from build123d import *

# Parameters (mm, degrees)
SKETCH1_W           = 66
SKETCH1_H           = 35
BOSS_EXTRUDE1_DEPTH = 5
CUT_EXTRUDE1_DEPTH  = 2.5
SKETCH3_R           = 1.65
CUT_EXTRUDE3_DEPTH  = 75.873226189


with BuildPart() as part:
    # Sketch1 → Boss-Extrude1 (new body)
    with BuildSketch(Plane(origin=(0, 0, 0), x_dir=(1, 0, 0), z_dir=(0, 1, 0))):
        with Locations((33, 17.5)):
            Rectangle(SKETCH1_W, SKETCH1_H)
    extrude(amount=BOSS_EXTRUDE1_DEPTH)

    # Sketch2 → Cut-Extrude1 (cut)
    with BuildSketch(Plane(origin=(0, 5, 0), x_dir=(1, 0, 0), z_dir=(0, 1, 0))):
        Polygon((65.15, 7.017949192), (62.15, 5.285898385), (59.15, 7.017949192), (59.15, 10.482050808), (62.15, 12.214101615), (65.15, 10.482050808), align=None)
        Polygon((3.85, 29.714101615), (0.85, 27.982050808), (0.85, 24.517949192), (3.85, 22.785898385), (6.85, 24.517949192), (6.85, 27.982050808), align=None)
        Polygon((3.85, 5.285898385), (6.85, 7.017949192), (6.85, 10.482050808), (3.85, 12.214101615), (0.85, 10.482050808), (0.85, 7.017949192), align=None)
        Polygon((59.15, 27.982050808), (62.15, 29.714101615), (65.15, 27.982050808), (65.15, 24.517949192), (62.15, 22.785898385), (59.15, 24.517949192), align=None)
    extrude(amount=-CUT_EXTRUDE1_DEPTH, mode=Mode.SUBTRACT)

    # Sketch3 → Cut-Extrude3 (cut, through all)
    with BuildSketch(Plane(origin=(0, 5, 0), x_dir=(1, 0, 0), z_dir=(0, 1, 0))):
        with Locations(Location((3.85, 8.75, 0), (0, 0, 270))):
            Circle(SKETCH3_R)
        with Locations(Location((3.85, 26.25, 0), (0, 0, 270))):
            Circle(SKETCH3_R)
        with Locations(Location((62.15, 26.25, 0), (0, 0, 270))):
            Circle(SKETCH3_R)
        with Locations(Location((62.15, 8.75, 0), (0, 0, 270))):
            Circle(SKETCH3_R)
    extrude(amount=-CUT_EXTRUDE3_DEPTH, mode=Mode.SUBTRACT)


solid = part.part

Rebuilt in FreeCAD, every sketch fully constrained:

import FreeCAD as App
import Part
import Sketcher
Q = App.Units.Quantity


def add_polygon(sketch, points):
    """Adds a closed chain of lines whose ends are joined by coincident constraints."""
    first, n = sketch.GeometryCount, len(points)
    for a, b in zip(points, points[1:] + points[:1]):
        sketch.addGeometry(Part.LineSegment(App.Vector(*a, 0), App.Vector(*b, 0)), False)
    for i in range(n):
        sketch.addConstraint(Sketcher.Constraint("Coincident", first + i, 2, first + (i + 1) % n, 1))

doc = App.newDocument("Part")
body = doc.addObject("PartDesign::Body", "Body")

sketch1 = doc.addObject("Sketcher::SketchObject", "Sketch")
body.addObject(sketch1)
sketch1.AttachmentSupport = (doc.XZ_Plane, [""])
sketch1.MapMode = "FlatFace"
add_polygon(sketch1, [(0, -35), (0, 0), (66, 0), (66, -35)])
sketch1.addConstraint(Sketcher.Constraint("Vertical", 0))
sketch1.addConstraint(Sketcher.Constraint("Horizontal", 1))
sketch1.addConstraint(Sketcher.Constraint("Vertical", 2))
sketch1.addConstraint(Sketcher.Constraint("Horizontal", 3))
sketch1.addConstraint(Sketcher.Constraint("Coincident", 0, 2, -1, 1))
sketch1.addConstraint(Sketcher.Constraint("DistanceX", 1, 1, 1, 2, Q("66 mm")))
sketch1.addConstraint(Sketcher.Constraint("DistanceY", 0, 1, 0, 2, Q("35 mm")))
pad1 = doc.addObject("PartDesign::Pad", "Pad")
body.addObject(pad1)
pad1.Profile = sketch1
pad1.Length = 5
pad1.Reversed = True

sketch2 = doc.addObject("Sketcher::SketchObject", "Sketch001")
body.addObject(sketch2)
sketch2.AttachmentSupport = (doc.XZ_Plane, [""])
sketch2.MapMode = "FlatFace"
sketch2.AttachmentOffset = App.Placement(App.Vector(0, 0, -5), App.Rotation())
add_polygon(sketch2, [(62.1, -5.3), (65.2, -7), (65.2, -10.5), (62.1, -12.2), (59.1, -10.5), (59.1, -7)])
add_polygon(sketch2, [(3.9, -29.7), (0.8, -28), (0.8, -24.5), (3.9, -22.8), (6.8, -24.5), (6.8, -28)])
add_polygon(sketch2, [(3.9, -5.3), (6.8, -7), (6.8, -10.5), (3.9, -12.2), (0.8, -10.5), (0.8, -7)])
add_polygon(sketch2, [(62.1, -29.7), (59.1, -28), (59.1, -24.5), (62.1, -22.8), (65.2, -24.5), (65.2, -28)])
sketch2.addConstraint(Sketcher.Constraint("Vertical", 1))
sketch2.addConstraint(Sketcher.Constraint("Vertical", 4))
sketch2.addConstraint(Sketcher.Constraint("Vertical", 7))
sketch2.addConstraint(Sketcher.Constraint("Vertical", 10))
sketch2.addConstraint(Sketcher.Constraint("Vertical", 13))
sketch2.addConstraint(Sketcher.Constraint("Vertical", 16))
sketch2.addConstraint(Sketcher.Constraint("Vertical", 19))
sketch2.addConstraint(Sketcher.Constraint("Vertical", 22))
sketch2.addConstraint(Sketcher.Constraint("Parallel", 0, 3))
sketch2.addConstraint(Sketcher.Constraint("Parallel", 2, 5))
sketch2.addConstraint(Sketcher.Constraint("Parallel", 3, 6))
sketch2.addConstraint(Sketcher.Constraint("Parallel", 5, 8))
sketch2.addConstraint(Sketcher.Constraint("Parallel", 6, 9))
sketch2.addConstraint(Sketcher.Constraint("Parallel", 8, 11))
sketch2.addConstraint(Sketcher.Constraint("Parallel", 9, 12))
sketch2.addConstraint(Sketcher.Constraint("Parallel", 11, 14))
sketch2.addConstraint(Sketcher.Constraint("Parallel", 12, 15))
sketch2.addConstraint(Sketcher.Constraint("Parallel", 14, 17))
sketch2.addConstraint(Sketcher.Constraint("Parallel", 15, 18))
sketch2.addConstraint(Sketcher.Constraint("Parallel", 17, 20))
sketch2.addConstraint(Sketcher.Constraint("Parallel", 18, 21))
sketch2.addConstraint(Sketcher.Constraint("Parallel", 20, 23))
sketch2.addConstraint(Sketcher.Constraint("Horizontal", 1, 2, 3, 2))
sketch2.addConstraint(Sketcher.Constraint("Horizontal", 0, 2, 4, 2))
sketch2.addConstraint(Sketcher.Constraint("Horizontal", 7, 2, 9, 2))
sketch2.addConstraint(Sketcher.Constraint("Horizontal", 6, 2, 10, 2))
sketch2.addConstraint(Sketcher.Constraint("Horizontal", 4, 2, 12, 2))
sketch2.addConstraint(Sketcher.Constraint("Horizontal", 3, 2, 13, 2))
sketch2.addConstraint(Sketcher.Constraint("Horizontal", 2, 2, 14, 2))
sketch2.addConstraint(Sketcher.Constraint("Horizontal", 13, 2, 15, 2))
sketch2.addConstraint(Sketcher.Constraint("Horizontal", 12, 2, 16, 2))
sketch2.addConstraint(Sketcher.Constraint("Horizontal", 10, 2, 18, 2))
sketch2.addConstraint(Sketcher.Constraint("Horizontal", 9, 2, 19, 2))
sketch2.addConstraint(Sketcher.Constraint("Horizontal", 8, 2, 20, 2))
sketch2.addConstraint(Sketcher.Constraint("Horizontal", 19, 2, 21, 2))
sketch2.addConstraint(Sketcher.Constraint("Horizontal", 18, 2, 22, 2))
sketch2.addConstraint(Sketcher.Constraint("Vertical", 2, 2, 5, 2))
sketch2.addConstraint(Sketcher.Constraint("Vertical", 10, 2, 12, 2))
sketch2.addConstraint(Sketcher.Constraint("Vertical", 11, 2, 14, 2))
sketch2.addConstraint(Sketcher.Constraint("Vertical", 4, 2, 18, 2))
sketch2.addConstraint(Sketcher.Constraint("Equal", 4, 7))
sketch2.addConstraint(Sketcher.Constraint("Angle", 0, Q("-30 deg")))
sketch2.addConstraint(Sketcher.Constraint("DistanceX", 2, 2, 1, 2, Q("3 mm")))
sketch2.addConstraint(Sketcher.Constraint("DistanceX", 6, 2, 3, 2, Q("58.3 mm")))
sketch2.addConstraint(Sketcher.Constraint("DistanceY", 6, 2, 3, 2, Q("17.5 mm")))
sketch2.addConstraint(Sketcher.Constraint("DistanceX", -1, 1, 0, 2, Q("65.15 mm")))
sketch2.addConstraint(Sketcher.Constraint("DistanceY", 1, 2, 1, 1, Q("3.464102 mm")))
sketch2.addConstraint(Sketcher.Constraint("DistanceY", 2, 2, -1, 1, Q("12.214102 mm")))
pocket1 = doc.addObject("PartDesign::Pocket", "Pocket")
body.addObject(pocket1)
pocket1.Profile = sketch2
pocket1.Length = 2.5
pocket1.Reversed = True

sketch3 = doc.addObject("Sketcher::SketchObject", "Sketch002")
body.addObject(sketch3)
sketch3.AttachmentSupport = (doc.XZ_Plane, [""])
sketch3.MapMode = "FlatFace"
sketch3.AttachmentOffset = App.Placement(App.Vector(0, 0, -5), App.Rotation())
sketch3.addGeometry(Part.Circle(App.Vector(3.9, -8.8, 0), App.Vector(0, 0, 1), 1.6), False)
sketch3.addGeometry(Part.Circle(App.Vector(3.9, -26.2, 0), App.Vector(0, 0, 1), 1.6), False)
sketch3.addGeometry(Part.Circle(App.Vector(62.1, -26.2, 0), App.Vector(0, 0, 1), 1.6), False)
sketch3.addGeometry(Part.Circle(App.Vector(62.1, -8.8, 0), App.Vector(0, 0, 1), 1.6), False)
sketch3.addConstraint(Sketcher.Constraint("Equal", 0, 1))
sketch3.addConstraint(Sketcher.Constraint("Equal", 1, 2))
sketch3.addConstraint(Sketcher.Constraint("Equal", 2, 3))
sketch3.addConstraint(Sketcher.Constraint("Horizontal", 1, 3, 2, 3))
sketch3.addConstraint(Sketcher.Constraint("Horizontal", 0, 3, 3, 3))
sketch3.addConstraint(Sketcher.Constraint("Vertical", 0, 3, 1, 3))
sketch3.addConstraint(Sketcher.Constraint("Vertical", 2, 3, 3, 3))
sketch3.addConstraint(Sketcher.Constraint("Diameter", 0, Q("3.3 mm")))
sketch3.addConstraint(Sketcher.Constraint("DistanceY", 1, 3, 0, 3, Q("17.5 mm")))
sketch3.addConstraint(Sketcher.Constraint("DistanceX", 1, 3, 2, 3, Q("58.3 mm")))
sketch3.addConstraint(Sketcher.Constraint("DistanceX", -1, 1, 0, 3, Q("3.85 mm")))
sketch3.addConstraint(Sketcher.Constraint("DistanceY", 0, 3, -1, 1, Q("8.75 mm")))
pocket2 = doc.addObject("PartDesign::Pocket", "Pocket001")
body.addObject(pocket2)
pocket2.Profile = sketch3
pocket2.Type = "ThroughAll"
pocket2.Reversed = True

doc.recompute()
